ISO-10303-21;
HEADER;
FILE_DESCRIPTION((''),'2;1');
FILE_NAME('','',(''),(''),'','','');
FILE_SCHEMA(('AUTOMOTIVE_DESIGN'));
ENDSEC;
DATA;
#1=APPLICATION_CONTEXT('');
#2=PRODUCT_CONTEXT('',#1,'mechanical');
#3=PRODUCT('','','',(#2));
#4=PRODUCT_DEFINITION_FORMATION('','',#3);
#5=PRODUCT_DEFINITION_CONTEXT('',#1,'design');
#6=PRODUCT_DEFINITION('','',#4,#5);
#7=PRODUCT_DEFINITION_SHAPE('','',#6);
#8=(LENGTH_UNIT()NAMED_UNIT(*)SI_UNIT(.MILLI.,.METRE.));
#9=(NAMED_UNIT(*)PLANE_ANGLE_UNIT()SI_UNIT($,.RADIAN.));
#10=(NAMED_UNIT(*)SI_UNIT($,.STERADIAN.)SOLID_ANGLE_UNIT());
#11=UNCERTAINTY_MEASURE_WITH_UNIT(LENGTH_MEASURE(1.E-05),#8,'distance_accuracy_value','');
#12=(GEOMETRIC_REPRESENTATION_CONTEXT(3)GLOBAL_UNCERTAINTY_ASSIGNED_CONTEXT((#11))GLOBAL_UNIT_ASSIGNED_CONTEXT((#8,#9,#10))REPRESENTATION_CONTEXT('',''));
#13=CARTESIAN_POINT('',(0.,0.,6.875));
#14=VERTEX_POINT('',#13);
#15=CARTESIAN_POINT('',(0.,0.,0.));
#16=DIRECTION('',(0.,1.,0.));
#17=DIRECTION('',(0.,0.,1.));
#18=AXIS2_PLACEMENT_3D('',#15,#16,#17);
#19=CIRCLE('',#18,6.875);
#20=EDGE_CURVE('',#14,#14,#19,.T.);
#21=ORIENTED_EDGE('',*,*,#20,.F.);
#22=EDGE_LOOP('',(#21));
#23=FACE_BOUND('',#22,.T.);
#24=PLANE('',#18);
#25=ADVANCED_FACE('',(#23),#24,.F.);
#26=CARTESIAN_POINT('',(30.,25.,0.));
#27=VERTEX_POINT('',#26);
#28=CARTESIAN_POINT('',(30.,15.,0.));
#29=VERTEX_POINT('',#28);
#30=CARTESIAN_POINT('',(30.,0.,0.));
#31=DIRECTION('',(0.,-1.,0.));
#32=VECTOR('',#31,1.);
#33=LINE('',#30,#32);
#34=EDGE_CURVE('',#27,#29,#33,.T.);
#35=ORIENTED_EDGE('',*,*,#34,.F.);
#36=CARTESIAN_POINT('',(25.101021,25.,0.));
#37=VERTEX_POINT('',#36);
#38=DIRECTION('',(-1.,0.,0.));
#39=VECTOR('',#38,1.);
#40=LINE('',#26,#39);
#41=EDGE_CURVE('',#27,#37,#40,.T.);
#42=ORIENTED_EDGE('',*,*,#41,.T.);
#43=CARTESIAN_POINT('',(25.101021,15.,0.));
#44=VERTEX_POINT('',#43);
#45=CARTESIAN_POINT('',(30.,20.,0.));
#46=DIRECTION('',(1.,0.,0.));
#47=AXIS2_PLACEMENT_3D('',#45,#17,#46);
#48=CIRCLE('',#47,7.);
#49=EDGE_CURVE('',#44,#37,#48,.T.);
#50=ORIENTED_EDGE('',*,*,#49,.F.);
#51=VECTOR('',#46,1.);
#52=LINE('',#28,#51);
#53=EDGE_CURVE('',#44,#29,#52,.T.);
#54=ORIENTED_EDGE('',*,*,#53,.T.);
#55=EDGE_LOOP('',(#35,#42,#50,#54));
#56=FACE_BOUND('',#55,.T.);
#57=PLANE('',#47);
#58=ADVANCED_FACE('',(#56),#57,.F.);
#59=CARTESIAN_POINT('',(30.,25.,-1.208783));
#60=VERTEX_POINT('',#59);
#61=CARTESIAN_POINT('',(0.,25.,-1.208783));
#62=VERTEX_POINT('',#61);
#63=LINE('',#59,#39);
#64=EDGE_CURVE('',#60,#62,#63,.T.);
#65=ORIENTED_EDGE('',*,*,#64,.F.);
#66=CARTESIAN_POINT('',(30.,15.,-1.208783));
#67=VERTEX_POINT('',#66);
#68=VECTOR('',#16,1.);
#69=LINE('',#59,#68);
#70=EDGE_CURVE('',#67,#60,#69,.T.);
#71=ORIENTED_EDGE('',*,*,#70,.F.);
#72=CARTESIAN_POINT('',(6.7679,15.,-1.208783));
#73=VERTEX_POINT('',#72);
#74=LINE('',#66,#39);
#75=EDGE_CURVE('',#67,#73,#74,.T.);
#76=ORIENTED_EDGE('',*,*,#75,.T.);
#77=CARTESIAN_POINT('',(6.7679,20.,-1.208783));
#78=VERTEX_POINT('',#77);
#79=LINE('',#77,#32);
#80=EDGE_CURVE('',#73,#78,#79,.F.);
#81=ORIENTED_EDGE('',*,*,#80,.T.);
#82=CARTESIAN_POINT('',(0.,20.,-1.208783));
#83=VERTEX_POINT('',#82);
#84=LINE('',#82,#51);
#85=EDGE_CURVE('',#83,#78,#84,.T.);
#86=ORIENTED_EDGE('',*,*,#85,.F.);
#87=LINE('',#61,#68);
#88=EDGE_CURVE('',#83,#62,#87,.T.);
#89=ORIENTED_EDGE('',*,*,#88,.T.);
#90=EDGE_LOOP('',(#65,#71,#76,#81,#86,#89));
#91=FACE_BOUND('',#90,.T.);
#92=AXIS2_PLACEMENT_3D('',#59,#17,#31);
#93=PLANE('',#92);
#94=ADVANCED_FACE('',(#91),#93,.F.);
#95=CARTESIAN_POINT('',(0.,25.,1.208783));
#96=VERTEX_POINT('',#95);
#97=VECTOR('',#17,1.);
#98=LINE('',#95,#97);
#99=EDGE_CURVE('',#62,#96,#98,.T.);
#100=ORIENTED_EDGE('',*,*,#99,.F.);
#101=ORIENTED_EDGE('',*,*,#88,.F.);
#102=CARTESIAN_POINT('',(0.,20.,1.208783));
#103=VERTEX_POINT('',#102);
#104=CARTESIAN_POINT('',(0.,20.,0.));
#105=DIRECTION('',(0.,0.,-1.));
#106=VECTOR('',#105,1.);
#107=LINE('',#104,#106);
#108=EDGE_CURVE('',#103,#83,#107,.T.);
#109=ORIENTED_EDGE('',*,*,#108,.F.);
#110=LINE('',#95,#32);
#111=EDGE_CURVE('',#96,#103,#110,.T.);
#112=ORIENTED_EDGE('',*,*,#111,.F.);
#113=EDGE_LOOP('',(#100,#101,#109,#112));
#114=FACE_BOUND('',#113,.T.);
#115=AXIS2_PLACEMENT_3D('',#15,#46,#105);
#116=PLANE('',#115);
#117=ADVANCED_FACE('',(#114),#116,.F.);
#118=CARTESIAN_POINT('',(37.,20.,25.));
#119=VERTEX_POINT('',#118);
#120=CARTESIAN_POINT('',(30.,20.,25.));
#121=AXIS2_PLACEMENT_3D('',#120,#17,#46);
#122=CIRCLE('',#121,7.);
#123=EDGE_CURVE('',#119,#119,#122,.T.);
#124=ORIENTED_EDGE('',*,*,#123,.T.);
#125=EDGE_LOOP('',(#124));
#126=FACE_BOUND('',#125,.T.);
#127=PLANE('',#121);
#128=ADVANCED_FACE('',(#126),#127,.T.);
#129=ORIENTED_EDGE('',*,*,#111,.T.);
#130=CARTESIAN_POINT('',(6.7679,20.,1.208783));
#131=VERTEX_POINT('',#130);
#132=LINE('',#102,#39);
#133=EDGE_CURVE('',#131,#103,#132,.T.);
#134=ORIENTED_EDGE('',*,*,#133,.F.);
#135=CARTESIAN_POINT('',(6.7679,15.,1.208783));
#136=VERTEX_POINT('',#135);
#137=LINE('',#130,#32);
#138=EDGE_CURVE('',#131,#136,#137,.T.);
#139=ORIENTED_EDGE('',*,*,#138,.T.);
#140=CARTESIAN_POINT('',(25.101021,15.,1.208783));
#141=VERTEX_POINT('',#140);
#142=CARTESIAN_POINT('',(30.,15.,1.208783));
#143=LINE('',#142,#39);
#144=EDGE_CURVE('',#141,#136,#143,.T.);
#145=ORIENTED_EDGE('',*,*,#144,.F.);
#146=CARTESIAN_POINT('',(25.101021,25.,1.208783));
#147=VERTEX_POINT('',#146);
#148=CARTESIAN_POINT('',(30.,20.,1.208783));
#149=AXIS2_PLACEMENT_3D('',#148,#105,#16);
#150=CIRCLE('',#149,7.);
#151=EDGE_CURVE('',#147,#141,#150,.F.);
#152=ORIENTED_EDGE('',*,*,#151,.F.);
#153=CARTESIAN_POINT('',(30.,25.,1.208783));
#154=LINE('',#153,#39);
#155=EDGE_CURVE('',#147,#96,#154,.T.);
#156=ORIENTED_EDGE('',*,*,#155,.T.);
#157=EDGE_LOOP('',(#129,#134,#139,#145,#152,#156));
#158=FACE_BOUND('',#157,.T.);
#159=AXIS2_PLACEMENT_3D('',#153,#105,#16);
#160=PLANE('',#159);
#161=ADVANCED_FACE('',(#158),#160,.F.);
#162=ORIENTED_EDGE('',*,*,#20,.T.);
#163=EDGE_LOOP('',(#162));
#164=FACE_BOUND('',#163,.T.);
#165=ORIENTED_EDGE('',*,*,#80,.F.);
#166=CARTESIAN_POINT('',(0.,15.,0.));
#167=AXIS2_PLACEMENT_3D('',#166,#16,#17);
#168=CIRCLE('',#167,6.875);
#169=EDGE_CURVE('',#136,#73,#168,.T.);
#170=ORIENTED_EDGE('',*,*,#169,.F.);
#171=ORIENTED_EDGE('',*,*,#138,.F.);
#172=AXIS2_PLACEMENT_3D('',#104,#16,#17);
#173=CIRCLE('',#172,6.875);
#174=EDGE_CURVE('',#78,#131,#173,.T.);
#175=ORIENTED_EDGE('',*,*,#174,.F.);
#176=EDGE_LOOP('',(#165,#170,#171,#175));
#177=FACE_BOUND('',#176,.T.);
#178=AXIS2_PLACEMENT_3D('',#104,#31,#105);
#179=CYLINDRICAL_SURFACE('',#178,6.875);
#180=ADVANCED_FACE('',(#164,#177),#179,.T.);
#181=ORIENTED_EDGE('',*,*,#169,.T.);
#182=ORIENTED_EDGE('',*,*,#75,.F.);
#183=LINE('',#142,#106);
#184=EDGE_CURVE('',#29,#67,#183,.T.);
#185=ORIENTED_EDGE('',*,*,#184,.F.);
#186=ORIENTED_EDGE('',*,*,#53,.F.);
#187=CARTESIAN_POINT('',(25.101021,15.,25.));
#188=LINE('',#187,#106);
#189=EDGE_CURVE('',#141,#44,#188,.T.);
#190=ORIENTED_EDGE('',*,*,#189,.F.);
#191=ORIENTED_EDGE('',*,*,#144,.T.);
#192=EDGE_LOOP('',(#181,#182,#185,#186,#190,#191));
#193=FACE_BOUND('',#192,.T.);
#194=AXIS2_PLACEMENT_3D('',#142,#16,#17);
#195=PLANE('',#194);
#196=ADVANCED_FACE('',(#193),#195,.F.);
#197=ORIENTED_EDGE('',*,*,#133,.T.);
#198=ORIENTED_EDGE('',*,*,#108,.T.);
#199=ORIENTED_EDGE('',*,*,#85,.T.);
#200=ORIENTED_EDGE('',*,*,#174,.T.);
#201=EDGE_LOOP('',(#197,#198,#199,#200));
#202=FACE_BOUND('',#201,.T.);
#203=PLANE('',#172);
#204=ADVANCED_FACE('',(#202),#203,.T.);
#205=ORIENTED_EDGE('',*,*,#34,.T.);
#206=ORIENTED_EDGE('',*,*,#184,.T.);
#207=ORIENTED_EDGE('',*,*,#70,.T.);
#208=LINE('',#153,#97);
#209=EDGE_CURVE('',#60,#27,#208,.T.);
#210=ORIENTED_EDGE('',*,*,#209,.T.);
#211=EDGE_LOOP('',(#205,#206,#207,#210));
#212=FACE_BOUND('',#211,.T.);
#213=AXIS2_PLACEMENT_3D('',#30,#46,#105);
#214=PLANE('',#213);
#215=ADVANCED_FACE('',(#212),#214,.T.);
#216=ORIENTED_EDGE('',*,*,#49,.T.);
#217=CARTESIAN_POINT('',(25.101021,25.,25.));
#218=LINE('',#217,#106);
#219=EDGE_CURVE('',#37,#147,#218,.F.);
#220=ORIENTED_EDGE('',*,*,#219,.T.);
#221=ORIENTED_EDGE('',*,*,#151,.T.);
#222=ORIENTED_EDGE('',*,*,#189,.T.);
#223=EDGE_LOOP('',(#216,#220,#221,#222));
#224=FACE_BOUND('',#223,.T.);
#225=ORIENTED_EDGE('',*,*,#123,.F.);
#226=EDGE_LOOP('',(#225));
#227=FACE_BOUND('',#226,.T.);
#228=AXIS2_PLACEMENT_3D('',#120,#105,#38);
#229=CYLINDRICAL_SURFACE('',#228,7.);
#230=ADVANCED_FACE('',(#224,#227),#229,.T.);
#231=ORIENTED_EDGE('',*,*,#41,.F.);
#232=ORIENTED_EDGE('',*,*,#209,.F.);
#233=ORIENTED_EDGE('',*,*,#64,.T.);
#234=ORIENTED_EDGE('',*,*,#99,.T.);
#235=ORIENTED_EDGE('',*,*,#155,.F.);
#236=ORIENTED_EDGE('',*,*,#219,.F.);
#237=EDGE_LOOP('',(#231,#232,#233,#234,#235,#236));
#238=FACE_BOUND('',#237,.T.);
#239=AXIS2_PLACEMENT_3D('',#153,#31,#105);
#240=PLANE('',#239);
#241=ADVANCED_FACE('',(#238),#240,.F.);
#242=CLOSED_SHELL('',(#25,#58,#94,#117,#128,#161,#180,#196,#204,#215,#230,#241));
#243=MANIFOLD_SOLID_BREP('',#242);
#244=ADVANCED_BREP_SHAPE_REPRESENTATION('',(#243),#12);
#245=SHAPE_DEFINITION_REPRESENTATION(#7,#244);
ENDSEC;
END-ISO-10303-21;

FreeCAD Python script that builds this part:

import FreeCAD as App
import Part
import Sketcher

V = App.Vector


def add_polygon(sketch, points):
    """Adds a closed chain of lines whose ends are joined by coincident constraints."""
    first, n = sketch.GeometryCount, len(points)
    for a, b in zip(points, points[1:] + points[:1]):
        sketch.addGeometry(Part.LineSegment(App.Vector(*a, 0), App.Vector(*b, 0)), False)
    for i in range(n):
        sketch.addConstraint(Sketcher.Constraint("Coincident", first + i, 2, first + (i + 1) % n, 1))

doc = App.newDocument("Part")
body = doc.addObject("PartDesign::Body", "Body")

sketch1 = doc.addObject("Sketcher::SketchObject", "Sketch")
body.addObject(sketch1)
sketch1.AttachmentSupport = (doc.XZ_Plane, [""])
sketch1.MapMode = "FlatFace"
sketch1.addGeometry(Part.Circle(V(0, 0, 0), V(0, 0, 1), 7), False)
sketch1.addConstraint([
    Sketcher.Constraint("Coincident", 0, 3, -1, 1),
    Sketcher.Constraint("Diameter", 0, 13.75),
])
pad1 = doc.addObject("PartDesign::Pad", "Pad")
body.addObject(pad1)
pad1.Profile = sketch1
pad1.Length = 20
pad1.Reversed = True

sketch2 = doc.addObject("Sketcher::SketchObject", "Sketch001")
body.addObject(sketch2)
sketch2.AttachmentSupport = (doc.YZ_Plane, [""])
sketch2.MapMode = "FlatFace"
add_polygon(sketch2, [(25, 1.2), (15, 1.2), (15, -1.2), (25, -1.2)])
sketch2.addConstraint([
    Sketcher.Constraint("Horizontal", 0),
    Sketcher.Constraint("Vertical", 1),
    Sketcher.Constraint("Horizontal", 2),
    Sketcher.Constraint("Vertical", 3),
    Sketcher.Constraint("DistanceX", 0, 2, 0, 1, 10.0),
    Sketcher.Constraint("DistanceX", -1, 1, 0, 2, 15.0),
    Sketcher.Constraint("DistanceY", 1, 2, 1, 1, 2.417566),
    Sketcher.Constraint("DistanceY", -1, 1, 0, 2, 1.208783),
])
pad2 = doc.addObject("PartDesign::Pad", "Pad001")
body.addObject(pad2)
pad2.Profile = sketch2
pad2.Length = 30

sketch3 = doc.addObject("Sketcher::SketchObject", "Sketch002")
body.addObject(sketch3)
sketch3.AttachmentSupport = (doc.XY_Plane, [""])
sketch3.MapMode = "FlatFace"
sketch3.addGeometry(Part.Circle(V(30, 20, 0), V(0, 0, 1), 7), False)
sketch3.addConstraint([
    Sketcher.Constraint("Diameter", 0, 14.0),
    Sketcher.Constraint("DistanceX", -1, 1, 0, 3, 30.0),
    Sketcher.Constraint("DistanceY", -1, 1, 0, 3, 20.0),
])
pad3 = doc.addObject("PartDesign::Pad", "Pad002")
body.addObject(pad3)
pad3.Profile = sketch3
pad3.Length = 25

doc.recompute()
